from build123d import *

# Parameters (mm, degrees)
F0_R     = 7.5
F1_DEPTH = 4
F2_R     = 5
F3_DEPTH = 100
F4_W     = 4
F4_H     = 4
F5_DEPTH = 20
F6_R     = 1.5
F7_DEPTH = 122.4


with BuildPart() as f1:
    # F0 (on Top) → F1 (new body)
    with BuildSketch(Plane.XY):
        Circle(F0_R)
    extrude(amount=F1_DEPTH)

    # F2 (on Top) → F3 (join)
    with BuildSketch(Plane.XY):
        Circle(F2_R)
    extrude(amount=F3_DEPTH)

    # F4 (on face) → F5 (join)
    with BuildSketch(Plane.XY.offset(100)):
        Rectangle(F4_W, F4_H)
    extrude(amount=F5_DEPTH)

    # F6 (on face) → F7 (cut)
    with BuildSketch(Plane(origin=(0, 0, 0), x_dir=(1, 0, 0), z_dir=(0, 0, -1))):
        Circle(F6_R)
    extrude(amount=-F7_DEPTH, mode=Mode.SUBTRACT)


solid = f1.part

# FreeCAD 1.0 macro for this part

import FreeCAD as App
import Part
import Sketcher

V = App.Vector


def add_polygon(sketch, points):
    """Adds a closed chain of lines whose ends are joined by coincident constraints."""
    first, n = sketch.GeometryCount, len(points)
    for a, b in zip(points, points[1:] + points[:1]):
        sketch.addGeometry(Part.LineSegment(App.Vector(*a, 0), App.Vector(*b, 0)), False)
    for i in range(n):
        sketch.addConstraint(Sketcher.Constraint("Coincident", first + i, 2, first + (i + 1) % n, 1))

doc = App.newDocument("Part")
body = doc.addObject("PartDesign::Body", "Body")

# Sketch on XY plane
sketch1 = body.newObject("Sketcher::SketchObject", "Sketch")
sketch1.AttachmentSupport = (doc.getObject("XY_Plane"), [""])
sketch1.MapMode = "FlatFace"
sketch1.addGeometry(Part.Circle(V(0, 0, 0), V(0, 0, 1), 8), False)
sketch1.addConstraint(Sketcher.Constraint("Coincident", 0, 3, -1, 1))
sketch1.addConstraint(Sketcher.Constraint("Diameter", 0, 15.0))
pad1 = body.newObject("PartDesign::Pad", "Pad")
pad1.Profile = sketch1
pad1.Length = 4

# Sketch on XY plane
sketch2 = body.newObject("Sketcher::SketchObject", "Sketch001")
sketch2.AttachmentSupport = (doc.getObject("XY_Plane"), [""])
sketch2.MapMode = "FlatFace"
sketch2.addGeometry(Part.Circle(V(0, 0, 0), V(0, 0, 1), 5), False)
sketch2.addConstraint(Sketcher.Constraint("Coincident", 0, 3, -1, 1))
sketch2.addConstraint(Sketcher.Constraint("Diameter", 0, 10.0))
pad2 = body.newObject("PartDesign::Pad", "Pad001")
pad2.Profile = sketch2
pad2.Length = 100

# Sketch on XY plane
sketch3 = body.newObject("Sketcher::SketchObject", "Sketch002")
sketch3.AttachmentSupport = (doc.getObject("XY_Plane"), [""])
sketch3.MapMode = "FlatFace"
sketch3.AttachmentOffset = App.Placement(V(0, 0, 100), App.Rotation())
add_polygon(sketch3, [(-2, 2), (-2, -2), (2, -2), (2, 2)])  # lines 0-3
sketch3.addConstraint(Sketcher.Constraint("Vertical", 0))
sketch3.addConstraint(Sketcher.Constraint("Horizontal", 1))
sketch3.addConstraint(Sketcher.Constraint("Vertical", 2))
sketch3.addConstraint(Sketcher.Constraint("Horizontal", 3))
sketch3.addConstraint(Sketcher.Constraint("Symmetric", 0, 2, 2, 2, -1, 1))
sketch3.addConstraint(Sketcher.Constraint("Equal", 3, 0))
sketch3.addConstraint(Sketcher.Constraint("DistanceX", 1, 1, 1, 2, 4.0))
pad3 = body.newObject("PartDesign::Pad", "Pad002")
pad3.Profile = sketch3
pad3.Length = 20

# Sketch on XY plane
sketch4 = body.newObject("Sketcher::SketchObject", "Sketch003")
sketch4.AttachmentSupport = (doc.getObject("XY_Plane"), [""])
sketch4.MapMode = "FlatFace"
sketch4.addGeometry(Part.Circle(V(0, 0, 0), V(0, 0, 1), 1.5), False)
sketch4.addConstraint(Sketcher.Constraint("Coincident", 0, 3, -1, 1))
sketch4.addConstraint(Sketcher.Constraint("Diameter", 0, 3.0))
pocket1 = body.newObject("PartDesign::Pocket", "Pocket")
pocket1.Profile = sketch4
pocket1.Length = 122.4
pocket1.Reversed = True

doc.recompute()
